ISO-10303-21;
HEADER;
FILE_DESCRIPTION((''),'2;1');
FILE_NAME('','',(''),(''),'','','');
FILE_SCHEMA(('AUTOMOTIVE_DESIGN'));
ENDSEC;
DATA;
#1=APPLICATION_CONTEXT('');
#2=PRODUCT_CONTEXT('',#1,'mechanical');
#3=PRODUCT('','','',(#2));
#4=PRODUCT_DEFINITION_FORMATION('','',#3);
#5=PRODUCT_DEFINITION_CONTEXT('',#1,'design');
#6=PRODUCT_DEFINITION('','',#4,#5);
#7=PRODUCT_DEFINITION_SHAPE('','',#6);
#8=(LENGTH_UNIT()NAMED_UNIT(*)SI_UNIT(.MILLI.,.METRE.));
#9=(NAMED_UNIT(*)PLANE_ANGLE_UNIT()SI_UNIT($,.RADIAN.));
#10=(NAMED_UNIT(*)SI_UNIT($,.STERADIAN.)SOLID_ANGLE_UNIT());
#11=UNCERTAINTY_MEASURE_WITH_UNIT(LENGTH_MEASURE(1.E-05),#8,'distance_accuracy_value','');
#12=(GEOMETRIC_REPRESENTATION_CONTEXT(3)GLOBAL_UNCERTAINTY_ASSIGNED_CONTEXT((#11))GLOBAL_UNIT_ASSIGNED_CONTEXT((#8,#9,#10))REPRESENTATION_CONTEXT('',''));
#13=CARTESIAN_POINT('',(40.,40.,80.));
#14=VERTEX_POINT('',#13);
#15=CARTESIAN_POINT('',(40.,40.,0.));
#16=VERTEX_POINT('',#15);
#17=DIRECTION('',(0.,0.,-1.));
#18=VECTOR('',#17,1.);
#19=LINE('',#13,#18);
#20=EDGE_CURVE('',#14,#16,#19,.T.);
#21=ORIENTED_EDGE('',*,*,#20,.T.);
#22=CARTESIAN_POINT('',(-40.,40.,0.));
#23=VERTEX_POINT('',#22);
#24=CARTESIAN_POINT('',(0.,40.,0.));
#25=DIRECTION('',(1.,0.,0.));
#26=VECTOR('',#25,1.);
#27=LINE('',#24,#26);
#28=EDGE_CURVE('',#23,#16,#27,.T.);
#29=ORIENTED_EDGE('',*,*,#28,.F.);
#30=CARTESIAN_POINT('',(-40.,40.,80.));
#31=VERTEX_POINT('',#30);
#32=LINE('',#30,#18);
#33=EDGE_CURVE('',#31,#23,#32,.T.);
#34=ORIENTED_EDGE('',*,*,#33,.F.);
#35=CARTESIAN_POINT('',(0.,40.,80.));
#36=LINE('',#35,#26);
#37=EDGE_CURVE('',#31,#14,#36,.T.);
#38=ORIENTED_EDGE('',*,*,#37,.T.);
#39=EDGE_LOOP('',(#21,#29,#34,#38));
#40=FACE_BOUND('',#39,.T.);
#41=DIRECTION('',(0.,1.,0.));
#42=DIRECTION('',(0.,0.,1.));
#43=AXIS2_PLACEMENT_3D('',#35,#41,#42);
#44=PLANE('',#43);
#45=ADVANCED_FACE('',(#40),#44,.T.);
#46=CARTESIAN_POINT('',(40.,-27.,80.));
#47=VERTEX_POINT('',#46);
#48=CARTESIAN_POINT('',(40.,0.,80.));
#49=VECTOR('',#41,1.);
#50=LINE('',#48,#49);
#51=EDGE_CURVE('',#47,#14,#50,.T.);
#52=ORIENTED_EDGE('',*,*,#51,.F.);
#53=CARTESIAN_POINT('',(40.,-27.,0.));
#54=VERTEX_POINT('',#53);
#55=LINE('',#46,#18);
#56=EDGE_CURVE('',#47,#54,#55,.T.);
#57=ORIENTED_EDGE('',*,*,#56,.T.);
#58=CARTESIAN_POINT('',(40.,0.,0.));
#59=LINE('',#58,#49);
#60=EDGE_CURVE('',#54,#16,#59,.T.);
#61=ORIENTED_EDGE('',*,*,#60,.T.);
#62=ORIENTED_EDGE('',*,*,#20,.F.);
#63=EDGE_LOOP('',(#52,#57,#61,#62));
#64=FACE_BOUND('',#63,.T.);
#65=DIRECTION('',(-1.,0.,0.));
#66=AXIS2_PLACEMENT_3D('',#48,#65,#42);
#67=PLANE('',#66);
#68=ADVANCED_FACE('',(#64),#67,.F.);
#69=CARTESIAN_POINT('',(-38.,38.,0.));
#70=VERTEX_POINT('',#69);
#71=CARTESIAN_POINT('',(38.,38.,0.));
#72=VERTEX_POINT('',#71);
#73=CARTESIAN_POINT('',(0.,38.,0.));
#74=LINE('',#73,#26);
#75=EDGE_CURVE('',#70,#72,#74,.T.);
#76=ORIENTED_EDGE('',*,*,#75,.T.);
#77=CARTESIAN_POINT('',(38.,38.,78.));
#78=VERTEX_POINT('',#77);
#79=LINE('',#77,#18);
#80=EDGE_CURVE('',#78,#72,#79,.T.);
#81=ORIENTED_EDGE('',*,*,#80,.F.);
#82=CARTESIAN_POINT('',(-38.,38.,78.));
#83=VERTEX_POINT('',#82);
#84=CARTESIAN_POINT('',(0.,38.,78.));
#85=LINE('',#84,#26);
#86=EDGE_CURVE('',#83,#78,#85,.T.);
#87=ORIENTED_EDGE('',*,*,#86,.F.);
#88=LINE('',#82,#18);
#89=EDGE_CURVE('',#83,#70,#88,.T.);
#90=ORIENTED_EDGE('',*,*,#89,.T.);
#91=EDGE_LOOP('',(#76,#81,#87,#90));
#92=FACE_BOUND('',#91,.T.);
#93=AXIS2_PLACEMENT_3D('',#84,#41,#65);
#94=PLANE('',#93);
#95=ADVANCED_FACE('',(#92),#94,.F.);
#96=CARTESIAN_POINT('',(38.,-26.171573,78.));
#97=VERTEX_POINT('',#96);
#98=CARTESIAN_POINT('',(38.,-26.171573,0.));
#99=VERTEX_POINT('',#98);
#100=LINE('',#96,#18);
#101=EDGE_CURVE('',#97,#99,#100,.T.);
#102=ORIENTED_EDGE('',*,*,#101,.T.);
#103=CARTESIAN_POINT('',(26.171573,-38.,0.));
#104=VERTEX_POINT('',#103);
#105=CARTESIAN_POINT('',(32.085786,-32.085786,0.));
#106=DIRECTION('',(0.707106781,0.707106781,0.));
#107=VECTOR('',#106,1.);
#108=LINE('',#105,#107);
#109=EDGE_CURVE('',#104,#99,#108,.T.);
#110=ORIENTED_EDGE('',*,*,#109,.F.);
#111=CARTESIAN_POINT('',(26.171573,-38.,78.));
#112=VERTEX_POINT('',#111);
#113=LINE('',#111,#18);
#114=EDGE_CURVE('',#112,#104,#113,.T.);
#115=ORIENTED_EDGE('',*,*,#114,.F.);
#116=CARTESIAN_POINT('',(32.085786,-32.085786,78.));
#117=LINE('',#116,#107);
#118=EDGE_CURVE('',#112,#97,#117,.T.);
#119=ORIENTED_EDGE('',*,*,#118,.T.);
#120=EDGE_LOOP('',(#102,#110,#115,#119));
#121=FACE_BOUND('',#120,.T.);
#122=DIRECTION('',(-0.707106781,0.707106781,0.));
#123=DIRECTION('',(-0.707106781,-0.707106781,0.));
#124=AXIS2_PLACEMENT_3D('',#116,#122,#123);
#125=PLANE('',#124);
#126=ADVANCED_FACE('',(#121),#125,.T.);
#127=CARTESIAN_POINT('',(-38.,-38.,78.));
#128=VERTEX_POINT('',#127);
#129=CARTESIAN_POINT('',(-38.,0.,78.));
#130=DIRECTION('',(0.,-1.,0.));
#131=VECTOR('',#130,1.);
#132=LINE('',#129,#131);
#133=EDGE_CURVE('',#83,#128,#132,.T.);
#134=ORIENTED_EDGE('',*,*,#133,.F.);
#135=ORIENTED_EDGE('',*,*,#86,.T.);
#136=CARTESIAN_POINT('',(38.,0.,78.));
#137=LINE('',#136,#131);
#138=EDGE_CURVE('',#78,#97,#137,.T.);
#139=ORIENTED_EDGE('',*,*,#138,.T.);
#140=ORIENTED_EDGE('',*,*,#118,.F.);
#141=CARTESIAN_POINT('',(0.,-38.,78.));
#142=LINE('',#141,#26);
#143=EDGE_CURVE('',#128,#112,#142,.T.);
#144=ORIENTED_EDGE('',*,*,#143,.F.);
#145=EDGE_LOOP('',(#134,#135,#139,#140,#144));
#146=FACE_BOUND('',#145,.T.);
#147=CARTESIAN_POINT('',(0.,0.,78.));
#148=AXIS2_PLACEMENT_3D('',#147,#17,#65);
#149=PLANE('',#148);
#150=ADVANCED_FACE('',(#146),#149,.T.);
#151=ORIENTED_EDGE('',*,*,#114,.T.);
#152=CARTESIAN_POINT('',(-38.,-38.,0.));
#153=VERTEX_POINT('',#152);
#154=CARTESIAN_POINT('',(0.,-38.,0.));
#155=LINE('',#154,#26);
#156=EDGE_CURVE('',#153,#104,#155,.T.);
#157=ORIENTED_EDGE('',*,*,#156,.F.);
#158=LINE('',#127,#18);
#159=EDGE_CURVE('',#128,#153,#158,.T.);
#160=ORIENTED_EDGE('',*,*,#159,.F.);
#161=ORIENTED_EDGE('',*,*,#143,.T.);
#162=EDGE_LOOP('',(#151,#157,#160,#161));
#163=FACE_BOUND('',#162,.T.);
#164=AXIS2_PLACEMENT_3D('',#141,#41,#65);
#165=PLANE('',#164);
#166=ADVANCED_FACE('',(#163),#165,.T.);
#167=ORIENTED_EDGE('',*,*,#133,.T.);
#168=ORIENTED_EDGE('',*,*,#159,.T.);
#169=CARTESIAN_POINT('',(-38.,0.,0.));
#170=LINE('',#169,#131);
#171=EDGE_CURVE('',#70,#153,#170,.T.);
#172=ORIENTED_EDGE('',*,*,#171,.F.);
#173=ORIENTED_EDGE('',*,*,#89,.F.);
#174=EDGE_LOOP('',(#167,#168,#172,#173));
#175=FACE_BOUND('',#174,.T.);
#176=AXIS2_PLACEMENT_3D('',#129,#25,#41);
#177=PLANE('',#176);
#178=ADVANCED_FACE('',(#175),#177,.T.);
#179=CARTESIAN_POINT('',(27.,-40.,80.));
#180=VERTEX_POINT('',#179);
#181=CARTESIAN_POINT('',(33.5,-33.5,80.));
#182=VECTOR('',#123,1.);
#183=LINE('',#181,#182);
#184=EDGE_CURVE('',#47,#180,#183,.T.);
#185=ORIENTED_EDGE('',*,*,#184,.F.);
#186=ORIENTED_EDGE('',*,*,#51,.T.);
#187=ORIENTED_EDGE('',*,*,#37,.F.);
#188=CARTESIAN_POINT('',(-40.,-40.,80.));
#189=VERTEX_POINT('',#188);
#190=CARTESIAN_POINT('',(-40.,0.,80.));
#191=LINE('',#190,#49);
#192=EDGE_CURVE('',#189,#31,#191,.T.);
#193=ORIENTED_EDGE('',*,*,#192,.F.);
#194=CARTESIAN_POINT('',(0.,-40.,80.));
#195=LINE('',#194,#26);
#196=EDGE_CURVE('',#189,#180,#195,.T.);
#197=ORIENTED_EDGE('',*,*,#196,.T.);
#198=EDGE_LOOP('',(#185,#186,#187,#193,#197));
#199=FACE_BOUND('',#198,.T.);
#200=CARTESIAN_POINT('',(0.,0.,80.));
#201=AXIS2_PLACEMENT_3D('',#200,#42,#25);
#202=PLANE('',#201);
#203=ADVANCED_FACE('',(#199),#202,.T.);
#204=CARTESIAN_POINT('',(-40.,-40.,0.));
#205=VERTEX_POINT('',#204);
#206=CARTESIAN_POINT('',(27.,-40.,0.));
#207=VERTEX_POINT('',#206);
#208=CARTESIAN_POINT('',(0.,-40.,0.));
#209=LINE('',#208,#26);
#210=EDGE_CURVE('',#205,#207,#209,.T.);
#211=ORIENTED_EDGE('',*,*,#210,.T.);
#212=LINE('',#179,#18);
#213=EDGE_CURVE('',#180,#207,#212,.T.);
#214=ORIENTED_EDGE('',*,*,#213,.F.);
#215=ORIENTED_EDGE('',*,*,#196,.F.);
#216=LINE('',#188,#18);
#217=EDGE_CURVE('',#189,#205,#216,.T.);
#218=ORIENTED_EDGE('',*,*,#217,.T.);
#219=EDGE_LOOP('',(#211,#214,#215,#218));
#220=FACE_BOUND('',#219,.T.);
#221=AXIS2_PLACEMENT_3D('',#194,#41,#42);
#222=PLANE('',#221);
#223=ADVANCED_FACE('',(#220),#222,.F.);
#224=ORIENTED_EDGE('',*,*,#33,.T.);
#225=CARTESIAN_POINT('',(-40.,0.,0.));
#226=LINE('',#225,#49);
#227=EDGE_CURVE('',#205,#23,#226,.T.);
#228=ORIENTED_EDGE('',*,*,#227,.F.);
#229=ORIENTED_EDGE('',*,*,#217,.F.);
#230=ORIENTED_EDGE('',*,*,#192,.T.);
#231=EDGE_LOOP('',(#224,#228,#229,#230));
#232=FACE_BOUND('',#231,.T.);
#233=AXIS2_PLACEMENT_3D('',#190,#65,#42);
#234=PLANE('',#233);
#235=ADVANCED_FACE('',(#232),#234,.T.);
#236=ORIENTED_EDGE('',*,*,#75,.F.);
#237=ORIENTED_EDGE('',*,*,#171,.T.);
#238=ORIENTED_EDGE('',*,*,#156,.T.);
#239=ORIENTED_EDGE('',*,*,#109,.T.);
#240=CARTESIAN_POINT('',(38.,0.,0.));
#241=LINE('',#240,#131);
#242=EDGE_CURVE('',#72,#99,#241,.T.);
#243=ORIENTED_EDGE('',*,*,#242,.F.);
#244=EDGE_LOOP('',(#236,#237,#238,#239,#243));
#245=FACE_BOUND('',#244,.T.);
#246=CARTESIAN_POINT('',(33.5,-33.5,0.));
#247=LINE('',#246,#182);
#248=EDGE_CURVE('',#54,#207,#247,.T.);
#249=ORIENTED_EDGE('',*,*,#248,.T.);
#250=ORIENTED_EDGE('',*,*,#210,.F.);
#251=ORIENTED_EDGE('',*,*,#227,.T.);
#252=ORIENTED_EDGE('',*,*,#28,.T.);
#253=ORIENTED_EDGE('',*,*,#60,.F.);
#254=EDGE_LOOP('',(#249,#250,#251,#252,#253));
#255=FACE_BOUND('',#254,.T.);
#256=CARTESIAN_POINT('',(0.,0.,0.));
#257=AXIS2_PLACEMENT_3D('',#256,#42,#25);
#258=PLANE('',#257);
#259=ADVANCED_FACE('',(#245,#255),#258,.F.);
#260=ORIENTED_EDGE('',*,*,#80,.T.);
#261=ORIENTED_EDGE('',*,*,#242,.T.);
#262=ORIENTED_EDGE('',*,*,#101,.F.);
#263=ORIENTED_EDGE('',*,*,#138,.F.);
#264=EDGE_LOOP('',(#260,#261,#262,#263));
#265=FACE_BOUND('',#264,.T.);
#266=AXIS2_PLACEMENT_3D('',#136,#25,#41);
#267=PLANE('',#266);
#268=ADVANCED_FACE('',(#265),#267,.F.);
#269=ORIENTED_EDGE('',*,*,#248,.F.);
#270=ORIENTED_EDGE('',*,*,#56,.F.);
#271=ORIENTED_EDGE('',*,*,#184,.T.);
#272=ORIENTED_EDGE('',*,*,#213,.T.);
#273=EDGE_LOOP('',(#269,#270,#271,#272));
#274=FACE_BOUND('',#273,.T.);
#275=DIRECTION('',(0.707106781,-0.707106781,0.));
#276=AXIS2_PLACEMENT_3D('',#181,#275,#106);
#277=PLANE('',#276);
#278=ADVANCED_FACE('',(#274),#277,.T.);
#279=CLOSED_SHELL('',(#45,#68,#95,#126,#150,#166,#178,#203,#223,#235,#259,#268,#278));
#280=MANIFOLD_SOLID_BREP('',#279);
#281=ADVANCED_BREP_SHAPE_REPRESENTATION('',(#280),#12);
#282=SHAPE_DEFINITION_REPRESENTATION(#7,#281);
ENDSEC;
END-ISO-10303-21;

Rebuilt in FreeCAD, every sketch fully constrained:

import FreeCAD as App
import Part
import Sketcher

V = App.Vector

doc = App.newDocument("Part")
params = doc.addObject("Spreadsheet::Sheet", "Params")
for row, (alias, value) in enumerate([
    ("sketch1_width", "80 mm"),
    ("sketch1_width2", "67 mm"),
    ("pad1_length", "80 mm"),
    ("sketch2_width", "76 mm"),
    ("pocket1_length", "78 mm"),
], start=1):
    params.set(f"A{row}", alias)
    params.set(f"B{row}", "=" + value)
    params.setAlias(f"B{row}", alias)

body = doc.addObject("PartDesign::Body", "Body")

# Sketch on XY plane
sketch1 = body.newObject("Sketcher::SketchObject", "Sketch")
sketch1.AttachmentSupport = (doc.getObject("XY_Plane"), [""])
sketch1.MapMode = "FlatFace"
sketch1.addGeometry(Part.LineSegment(V(27, -40, 0), V(40, -27, 0)), False)
sketch1.addGeometry(Part.LineSegment(V(40, -27, 0), V(40, 40, 0)), False)
sketch1.addGeometry(Part.LineSegment(V(40, 40, 0), V(-40, 40, 0)), False)
sketch1.addGeometry(Part.LineSegment(V(-40, 40, 0), V(-40, -40, 0)), False)
sketch1.addGeometry(Part.LineSegment(V(-40, -40, 0), V(27, -40, 0)), False)
sketch1.addConstraint(Sketcher.Constraint("Coincident", 0, 2, 1, 1))
sketch1.addConstraint(Sketcher.Constraint("Coincident", 1, 2, 2, 1))
sketch1.addConstraint(Sketcher.Constraint("Coincident", 2, 2, 3, 1))
sketch1.addConstraint(Sketcher.Constraint("Coincident", 3, 2, 4, 1))
sketch1.addConstraint(Sketcher.Constraint("Coincident", 4, 2, 0, 1))
sketch1.addConstraint(Sketcher.Constraint("Vertical", 1))
sketch1.addConstraint(Sketcher.Constraint("Horizontal", 2))
sketch1.addConstraint(Sketcher.Constraint("Vertical", 3))
sketch1.addConstraint(Sketcher.Constraint("Horizontal", 4))
sketch1.addConstraint(Sketcher.Constraint("Symmetric", 1, 2, 3, 2, -1, 1))
sketch1.addConstraint(Sketcher.Constraint("Equal", 4, 1))
sketch1.addConstraint(Sketcher.Constraint("Equal", 2, 3))
sketch1.addConstraint(Sketcher.Constraint("DistanceX", 2, 2, 2, 1, 80.0))
sketch1.addConstraint(Sketcher.Constraint("DistanceX", 4, 1, 4, 2, 67.0))
sketch1.setExpression("Constraints[12]", "Params.sketch1_width")
sketch1.setExpression("Constraints[13]", "Params.sketch1_width2")
pad1 = body.newObject("PartDesign::Pad", "Pad")
pad1.Profile = sketch1
pad1.setExpression("Length", "Params.pad1_length")

# Sketch on XY plane
sketch2 = body.newObject("Sketcher::SketchObject", "Sketch001")
sketch2.AttachmentSupport = (doc.getObject("XY_Plane"), [""])
sketch2.MapMode = "FlatFace"
sketch2.addGeometry(Part.LineSegment(V(38, -26, 0), V(26, -38, 0)), False)
sketch2.addGeometry(Part.LineSegment(V(26, -38, 0), V(-38, -38, 0)), False)
sketch2.addGeometry(Part.LineSegment(V(-38, -38, 0), V(-38, 38, 0)), False)
sketch2.addGeometry(Part.LineSegment(V(-38, 38, 0), V(38, 38, 0)), False)
sketch2.addGeometry(Part.LineSegment(V(38, 38, 0), V(38, -26, 0)), False)
sketch2.addConstraint(Sketcher.Constraint("Coincident", 0, 2, 1, 1))
sketch2.addConstraint(Sketcher.Constraint("Coincident", 1, 2, 2, 1))
sketch2.addConstraint(Sketcher.Constraint("Coincident", 2, 2, 3, 1))
sketch2.addConstraint(Sketcher.Constraint("Coincident", 3, 2, 4, 1))
sketch2.addConstraint(Sketcher.Constraint("Coincident", 4, 2, 0, 1))
sketch2.addConstraint(Sketcher.Constraint("Horizontal", 1))
sketch2.addConstraint(Sketcher.Constraint("Vertical", 2))
sketch2.addConstraint(Sketcher.Constraint("Horizontal", 3))
sketch2.addConstraint(Sketcher.Constraint("Vertical", 4))
sketch2.addConstraint(Sketcher.Constraint("Symmetric", 1, 2, 3, 2, -1, 1))
sketch2.addConstraint(Sketcher.Constraint("Equal", 3, 2))
sketch2.addConstraint(Sketcher.Constraint("Equal", 1, 4))
sketch2.addConstraint(Sketcher.Constraint("DistanceX", 3, 1, 3, 2, 76.0))
sketch2.addConstraint(Sketcher.Constraint("DistanceX", 1, 2, 1, 1, 64.171573))
sketch2.setExpression("Constraints[12]", "Params.sketch2_width")
pocket1 = body.newObject("PartDesign::Pocket", "Pocket")
pocket1.Profile = sketch2
pocket1.setExpression("Length", "Params.pocket1_length")
pocket1.Reversed = True

doc.recompute()
